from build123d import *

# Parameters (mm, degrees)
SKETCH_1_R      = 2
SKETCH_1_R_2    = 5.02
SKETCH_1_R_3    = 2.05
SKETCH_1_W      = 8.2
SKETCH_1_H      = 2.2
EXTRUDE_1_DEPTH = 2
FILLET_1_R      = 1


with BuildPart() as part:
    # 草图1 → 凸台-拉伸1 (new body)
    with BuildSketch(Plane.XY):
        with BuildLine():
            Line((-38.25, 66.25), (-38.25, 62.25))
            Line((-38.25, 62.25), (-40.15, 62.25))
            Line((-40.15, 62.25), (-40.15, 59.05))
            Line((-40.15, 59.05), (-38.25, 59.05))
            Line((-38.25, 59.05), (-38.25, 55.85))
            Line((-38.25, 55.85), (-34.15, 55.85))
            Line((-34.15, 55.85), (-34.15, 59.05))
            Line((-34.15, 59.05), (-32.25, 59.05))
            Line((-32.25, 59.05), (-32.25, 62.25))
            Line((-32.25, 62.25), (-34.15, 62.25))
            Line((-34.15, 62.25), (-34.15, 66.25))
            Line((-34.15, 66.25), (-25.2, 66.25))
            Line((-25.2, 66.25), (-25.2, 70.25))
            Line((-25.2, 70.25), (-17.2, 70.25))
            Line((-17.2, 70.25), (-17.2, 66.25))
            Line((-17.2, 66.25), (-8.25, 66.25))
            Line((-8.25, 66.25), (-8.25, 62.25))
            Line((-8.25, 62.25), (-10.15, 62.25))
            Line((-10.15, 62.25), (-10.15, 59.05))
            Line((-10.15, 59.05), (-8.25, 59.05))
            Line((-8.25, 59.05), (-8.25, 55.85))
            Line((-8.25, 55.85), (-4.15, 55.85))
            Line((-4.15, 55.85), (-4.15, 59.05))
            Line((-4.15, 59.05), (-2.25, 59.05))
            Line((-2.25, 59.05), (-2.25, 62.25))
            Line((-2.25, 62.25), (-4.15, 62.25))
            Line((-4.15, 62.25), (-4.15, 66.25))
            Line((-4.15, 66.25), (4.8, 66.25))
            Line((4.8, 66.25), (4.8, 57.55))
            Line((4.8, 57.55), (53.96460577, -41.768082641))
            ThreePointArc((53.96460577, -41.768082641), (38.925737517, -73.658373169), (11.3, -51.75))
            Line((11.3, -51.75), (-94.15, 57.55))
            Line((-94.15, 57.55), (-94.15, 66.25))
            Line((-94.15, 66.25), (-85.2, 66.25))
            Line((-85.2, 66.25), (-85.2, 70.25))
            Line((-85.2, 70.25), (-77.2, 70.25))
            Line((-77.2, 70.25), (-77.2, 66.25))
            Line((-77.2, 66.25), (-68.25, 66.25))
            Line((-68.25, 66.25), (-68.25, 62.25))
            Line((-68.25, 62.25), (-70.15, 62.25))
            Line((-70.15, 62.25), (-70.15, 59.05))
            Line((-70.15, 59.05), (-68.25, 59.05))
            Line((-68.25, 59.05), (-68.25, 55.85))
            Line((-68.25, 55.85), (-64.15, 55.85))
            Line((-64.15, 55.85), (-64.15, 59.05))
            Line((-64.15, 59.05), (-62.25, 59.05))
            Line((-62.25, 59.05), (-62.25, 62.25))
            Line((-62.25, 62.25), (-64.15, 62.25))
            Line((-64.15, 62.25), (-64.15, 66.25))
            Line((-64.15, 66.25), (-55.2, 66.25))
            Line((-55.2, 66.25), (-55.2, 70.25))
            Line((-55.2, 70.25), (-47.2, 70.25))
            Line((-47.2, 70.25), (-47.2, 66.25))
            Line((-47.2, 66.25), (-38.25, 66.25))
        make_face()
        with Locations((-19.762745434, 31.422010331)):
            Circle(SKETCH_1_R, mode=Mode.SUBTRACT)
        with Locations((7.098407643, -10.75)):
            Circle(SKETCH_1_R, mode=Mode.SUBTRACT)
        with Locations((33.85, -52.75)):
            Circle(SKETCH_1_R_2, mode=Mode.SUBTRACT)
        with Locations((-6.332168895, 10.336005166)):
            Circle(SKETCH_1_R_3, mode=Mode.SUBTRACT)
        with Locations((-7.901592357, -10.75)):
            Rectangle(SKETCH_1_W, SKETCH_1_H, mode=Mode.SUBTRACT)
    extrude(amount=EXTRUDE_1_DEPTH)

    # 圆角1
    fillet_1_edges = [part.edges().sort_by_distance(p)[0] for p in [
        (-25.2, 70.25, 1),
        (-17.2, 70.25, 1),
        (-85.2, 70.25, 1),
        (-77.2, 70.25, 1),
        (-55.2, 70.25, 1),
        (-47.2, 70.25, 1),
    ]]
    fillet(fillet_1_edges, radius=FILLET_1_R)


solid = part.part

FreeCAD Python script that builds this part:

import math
import FreeCAD as App
import Part
import Sketcher

V = App.Vector


def edges_at(feature, points):
    """Names of the edges that pass closest to the given points."""
    edges = feature.Shape.Edges
    near = lambda p: min(range(len(edges)), key=lambda i: edges[i].distToShape(Part.Vertex(*p))[0])
    return sorted({f"Edge{near(p) + 1}" for p in points})

doc = App.newDocument("Part")
body = doc.addObject("PartDesign::Body", "Body")

sketch1 = body.newObject("Sketcher::SketchObject", "Sketch")
sketch1.AttachmentSupport = (doc.getObject("XY_Plane"), [""])
sketch1.MapMode = "FlatFace"
sketch1.addGeometry([
    Part.LineSegment(V(-38.25, 62.25, 0), V(-38.25, 66.25, 0)),
    Part.LineSegment(V(-38.25, 66.25, 0), V(-47.2, 66.25, 0)),
    Part.LineSegment(V(-47.2, 66.25, 0), V(-47.2, 70.25, 0)),
    Part.LineSegment(V(-47.2, 70.25, 0), V(-55.2, 70.25, 0)),
    Part.LineSegment(V(-55.2, 70.25, 0), V(-55.2, 66.25, 0)),
    Part.LineSegment(V(-55.2, 66.25, 0), V(-64.15, 66.25, 0)),
    Part.LineSegment(V(-64.15, 66.25, 0), V(-64.15, 62.25, 0)),
    Part.LineSegment(V(-64.15, 62.25, 0), V(-62.25, 62.25, 0)),
    Part.LineSegment(V(-62.25, 62.25, 0), V(-62.25, 59.05, 0)),
    Part.LineSegment(V(-62.25, 59.05, 0), V(-64.15, 59.05, 0)),
    Part.LineSegment(V(-64.15, 59.05, 0), V(-64.15, 55.85, 0)),
    Part.LineSegment(V(-64.15, 55.85, 0), V(-68.25, 55.85, 0)),
    Part.LineSegment(V(-68.25, 55.85, 0), V(-68.25, 59.05, 0)),
    Part.LineSegment(V(-68.25, 59.05, 0), V(-70.15, 59.05, 0)),
    Part.LineSegment(V(-70.15, 59.05, 0), V(-70.15, 62.25, 0)),
    Part.LineSegment(V(-70.15, 62.25, 0), V(-68.25, 62.25, 0)),
    Part.LineSegment(V(-68.25, 62.25, 0), V(-68.25, 66.25, 0)),
    Part.LineSegment(V(-68.25, 66.25, 0), V(-77.2, 66.25, 0)),
    Part.LineSegment(V(-77.2, 66.25, 0), V(-77.2, 70.25, 0)),
    Part.LineSegment(V(-77.2, 70.25, 0), V(-85.2, 70.25, 0)),
    Part.LineSegment(V(-85.2, 70.25, 0), V(-85.2, 66.25, 0)),
    Part.LineSegment(V(-85.2, 66.25, 0), V(-94.15, 66.25, 0)),
    Part.LineSegment(V(-94.15, 66.25, 0), V(-94.15, 57.55, 0)),
    Part.LineSegment(V(-94.15, 57.55, 0), V(11.3, -51.75, 0)),
    Part.ArcOfCircle(Part.Circle(V(33.8, -51.75, 0), V(0, 0, 1), 22.5), math.radians(180), math.radians(386.336408)),
    Part.LineSegment(V(53.964606, -41.768083, 0), V(4.8, 57.55, 0)),
    Part.LineSegment(V(4.8, 57.55, 0), V(4.8, 66.25, 0)),
    Part.LineSegment(V(4.8, 66.25, 0), V(-4.15, 66.25, 0)),
    Part.LineSegment(V(-4.15, 66.25, 0), V(-4.15, 62.25, 0)),
    Part.LineSegment(V(-4.15, 62.25, 0), V(-2.25, 62.25, 0)),
    Part.LineSegment(V(-2.25, 62.25, 0), V(-2.25, 59.05, 0)),
    Part.LineSegment(V(-2.25, 59.05, 0), V(-4.15, 59.05, 0)),
    Part.LineSegment(V(-4.15, 59.05, 0), V(-4.15, 55.85, 0)),
    Part.LineSegment(V(-4.15, 55.85, 0), V(-8.25, 55.85, 0)),
    Part.LineSegment(V(-8.25, 55.85, 0), V(-8.25, 59.05, 0)),
    Part.LineSegment(V(-8.25, 59.05, 0), V(-10.15, 59.05, 0)),
    Part.LineSegment(V(-10.15, 59.05, 0), V(-10.15, 62.25, 0)),
    Part.LineSegment(V(-10.15, 62.25, 0), V(-8.25, 62.25, 0)),
    Part.LineSegment(V(-8.25, 62.25, 0), V(-8.25, 66.25, 0)),
    Part.LineSegment(V(-8.25, 66.25, 0), V(-17.2, 66.25, 0)),
    Part.LineSegment(V(-17.2, 66.25, 0), V(-17.2, 70.25, 0)),
    Part.LineSegment(V(-17.2, 70.25, 0), V(-25.2, 70.25, 0)),
    Part.LineSegment(V(-25.2, 70.25, 0), V(-25.2, 66.25, 0)),
    Part.LineSegment(V(-25.2, 66.25, 0), V(-34.15, 66.25, 0)),
    Part.LineSegment(V(-34.15, 66.25, 0), V(-34.15, 62.25, 0)),
    Part.LineSegment(V(-34.15, 62.25, 0), V(-32.25, 62.25, 0)),
    Part.LineSegment(V(-32.25, 62.25, 0), V(-32.25, 59.05, 0)),
    Part.LineSegment(V(-32.25, 59.05, 0), V(-34.15, 59.05, 0)),
    Part.LineSegment(V(-34.15, 59.05, 0), V(-34.15, 55.85, 0)),
    Part.LineSegment(V(-34.15, 55.85, 0), V(-38.25, 55.85, 0)),
    Part.LineSegment(V(-38.25, 55.85, 0), V(-38.25, 59.05, 0)),
    Part.LineSegment(V(-38.25, 59.05, 0), V(-40.15, 59.05, 0)),
    Part.LineSegment(V(-40.15, 59.05, 0), V(-40.15, 62.25, 0)),
    Part.LineSegment(V(-40.15, 62.25, 0), V(-38.25, 62.25, 0)),
    Part.Circle(V(33.85, -52.75, 0), V(0, 0, 1), 5.02),
    Part.Circle(V(7.098408, -10.75, 0), V(0, 0, 1), 2),
    Part.Circle(V(-6.332169, 10.336005, 0), V(0, 0, 1), 2.05),
    Part.LineSegment(V(-12.001592, -11.85, 0), V(-12.001592, -9.65, 0)),
    Part.LineSegment(V(-12.001592, -9.65, 0), V(-3.801592, -9.65, 0)),
    Part.LineSegment(V(-3.801592, -9.65, 0), V(-3.801592, -11.85, 0)),
    Part.LineSegment(V(-3.801592, -11.85, 0), V(-12.001592, -11.85, 0)),
    Part.Circle(V(-19.762745, 31.42201, 0), V(0, 0, 1), 2),
], False)
sketch1.addConstraint([
    Sketcher.Constraint("Coincident", 0, 2, 1, 1),
    Sketcher.Constraint("Coincident", 1, 2, 2, 1),
    Sketcher.Constraint("Coincident", 2, 2, 3, 1),
    Sketcher.Constraint("Coincident", 3, 2, 4, 1),
    Sketcher.Constraint("Coincident", 4, 2, 5, 1),
    Sketcher.Constraint("Coincident", 5, 2, 6, 1),
    Sketcher.Constraint("Coincident", 6, 2, 7, 1),
    Sketcher.Constraint("Coincident", 7, 2, 8, 1),
    Sketcher.Constraint("Coincident", 8, 2, 9, 1),
    Sketcher.Constraint("Coincident", 9, 2, 10, 1),
    Sketcher.Constraint("Coincident", 10, 2, 11, 1),
    Sketcher.Constraint("Coincident", 11, 2, 12, 1),
    Sketcher.Constraint("Coincident", 12, 2, 13, 1),
    Sketcher.Constraint("Coincident", 13, 2, 14, 1),
    Sketcher.Constraint("Coincident", 14, 2, 15, 1),
    Sketcher.Constraint("Coincident", 15, 2, 16, 1),
    Sketcher.Constraint("Coincident", 16, 2, 17, 1),
    Sketcher.Constraint("Coincident", 17, 2, 18, 1),
    Sketcher.Constraint("Coincident", 18, 2, 19, 1),
    Sketcher.Constraint("Coincident", 19, 2, 20, 1),
    Sketcher.Constraint("Coincident", 20, 2, 21, 1),
    Sketcher.Constraint("Coincident", 21, 2, 22, 1),
    Sketcher.Constraint("Coincident", 22, 2, 23, 1),
    Sketcher.Constraint("Coincident", 23, 2, 24, 1),
    Sketcher.Constraint("Tangent", 24, 2, 25, 1),
    Sketcher.Constraint("Coincident", 25, 2, 26, 1),
    Sketcher.Constraint("Coincident", 26, 2, 27, 1),
    Sketcher.Constraint("Coincident", 27, 2, 28, 1),
    Sketcher.Constraint("Coincident", 28, 2, 29, 1),
    Sketcher.Constraint("Coincident", 29, 2, 30, 1),
    Sketcher.Constraint("Coincident", 30, 2, 31, 1),
    Sketcher.Constraint("Coincident", 31, 2, 32, 1),
    Sketcher.Constraint("Coincident", 32, 2, 33, 1),
    Sketcher.Constraint("Coincident", 33, 2, 34, 1),
    Sketcher.Constraint("Coincident", 34, 2, 35, 1),
    Sketcher.Constraint("Coincident", 35, 2, 36, 1),
    Sketcher.Constraint("Coincident", 36, 2, 37, 1),
    Sketcher.Constraint("Coincident", 37, 2, 38, 1),
    Sketcher.Constraint("Coincident", 38, 2, 39, 1),
    Sketcher.Constraint("Coincident", 39, 2, 40, 1),
    Sketcher.Constraint("Coincident", 40, 2, 41, 1),
    Sketcher.Constraint("Coincident", 41, 2, 42, 1),
    Sketcher.Constraint("Coincident", 42, 2, 43, 1),
    Sketcher.Constraint("Coincident", 43, 2, 44, 1),
    Sketcher.Constraint("Coincident", 44, 2, 45, 1),
    Sketcher.Constraint("Coincident", 45, 2, 46, 1),
    Sketcher.Constraint("Coincident", 46, 2, 47, 1),
    Sketcher.Constraint("Coincident", 47, 2, 48, 1),
    Sketcher.Constraint("Coincident", 48, 2, 49, 1),
    Sketcher.Constraint("Coincident", 49, 2, 50, 1),
    Sketcher.Constraint("Coincident", 50, 2, 51, 1),
    Sketcher.Constraint("Coincident", 51, 2, 52, 1),
    Sketcher.Constraint("Coincident", 52, 2, 53, 1),
    Sketcher.Constraint("Coincident", 53, 2, 0, 1),
    Sketcher.Constraint("Coincident", 57, 2, 58, 1),
    Sketcher.Constraint("Coincident", 58, 2, 59, 1),
    Sketcher.Constraint("Coincident", 59, 2, 60, 1),
    Sketcher.Constraint("Coincident", 60, 2, 57, 1),
    Sketcher.Constraint("Vertical", 0),
    Sketcher.Constraint("Horizontal", 1),
    Sketcher.Constraint("Vertical", 2),
    Sketcher.Constraint("Horizontal", 3),
    Sketcher.Constraint("Vertical", 4),
    Sketcher.Constraint("Horizontal", 5),
    Sketcher.Constraint("Vertical", 6),
    Sketcher.Constraint("Horizontal", 7),
    Sketcher.Constraint("Vertical", 8),
    Sketcher.Constraint("Horizontal", 9),
    Sketcher.Constraint("Vertical", 10),
    Sketcher.Constraint("Horizontal", 11),
    Sketcher.Constraint("Vertical", 12),
    Sketcher.Constraint("Horizontal", 13),
    Sketcher.Constraint("Vertical", 14),
    Sketcher.Constraint("Horizontal", 15),
    Sketcher.Constraint("Vertical", 16),
    Sketcher.Constraint("Horizontal", 17),
    Sketcher.Constraint("Vertical", 18),
    Sketcher.Constraint("Horizontal", 19),
    Sketcher.Constraint("Vertical", 20),
    Sketcher.Constraint("Horizontal", 21),
    Sketcher.Constraint("Vertical", 22),
    Sketcher.Constraint("Vertical", 26),
    Sketcher.Constraint("Horizontal", 27),
    Sketcher.Constraint("Vertical", 28),
    Sketcher.Constraint("Horizontal", 29),
    Sketcher.Constraint("Vertical", 30),
    Sketcher.Constraint("Horizontal", 31),
    Sketcher.Constraint("Vertical", 32),
    Sketcher.Constraint("Horizontal", 33),
    Sketcher.Constraint("Vertical", 34),
    Sketcher.Constraint("Horizontal", 35),
    Sketcher.Constraint("Vertical", 36),
    Sketcher.Constraint("Horizontal", 37),
    Sketcher.Constraint("Vertical", 38),
    Sketcher.Constraint("Horizontal", 39),
    Sketcher.Constraint("Vertical", 40),
    Sketcher.Constraint("Horizontal", 41),
    Sketcher.Constraint("Vertical", 42),
    Sketcher.Constraint("Horizontal", 43),
    Sketcher.Constraint("Vertical", 44),
    Sketcher.Constraint("Horizontal", 45),
    Sketcher.Constraint("Vertical", 46),
    Sketcher.Constraint("Horizontal", 47),
    Sketcher.Constraint("Vertical", 48),
    Sketcher.Constraint("Horizontal", 49),
    Sketcher.Constraint("Vertical", 50),
    Sketcher.Constraint("Horizontal", 51),
    Sketcher.Constraint("Vertical", 52),
    Sketcher.Constraint("Horizontal", 53),
    Sketcher.Constraint("Vertical", 57),
    Sketcher.Constraint("Horizontal", 58),
    Sketcher.Constraint("Vertical", 59),
    Sketcher.Constraint("Horizontal", 60),
    Sketcher.Constraint("Equal", 55, 61),
    Sketcher.Constraint("Horizontal", 1, 2, 4, 2),
    Sketcher.Constraint("Horizontal", 9, 2, 12, 2),
    Sketcher.Constraint("Horizontal", 7, 2, 14, 2),
    Sketcher.Constraint("Horizontal", 5, 2, 16, 2),
    Sketcher.Constraint("Horizontal", 3, 2, 18, 2),
    Sketcher.Constraint("Horizontal", 17, 2, 20, 2),
    Sketcher.Constraint("Horizontal", 24, 3, 23, 2),
    Sketcher.Constraint("Horizontal", 22, 2, 25, 2),
    Sketcher.Constraint("Horizontal", 21, 2, 26, 2),
    Sketcher.Constraint("Horizontal", 15, 2, 28, 2),
    Sketcher.Constraint("Horizontal", 13, 2, 30, 2),
    Sketcher.Constraint("Horizontal", 11, 2, 32, 2),
    Sketcher.Constraint("Horizontal", 31, 2, 34, 2),
    Sketcher.Constraint("Horizontal", 29, 2, 36, 2),
    Sketcher.Constraint("Horizontal", 27, 2, 38, 2),
    Sketcher.Constraint("Horizontal", 19, 2, 40, 2),
    Sketcher.Constraint("Horizontal", 39, 2, 42, 2),
    Sketcher.Constraint("Horizontal", 37, 2, 44, 2),
    Sketcher.Constraint("Horizontal", 35, 2, 46, 2),
    Sketcher.Constraint("Horizontal", 33, 2, 48, 2),
    Sketcher.Constraint("Horizontal", 47, 2, 50, 2),
    Sketcher.Constraint("Horizontal", 45, 2, 52, 2),
    Sketcher.Constraint("Vertical", 6, 2, 9, 2),
    Sketcher.Constraint("Vertical", 12, 2, 15, 2),
    Sketcher.Constraint("Vertical", 28, 2, 31, 2),
    Sketcher.Constraint("Vertical", 34, 2, 37, 2),
    Sketcher.Constraint("Vertical", 44, 2, 47, 2),
    Sketcher.Constraint("Vertical", 0, 2, 49, 2),
    Sketcher.Constraint("Equal", 1, 5),
    Sketcher.Constraint("Equal", 9, 13),
    Sketcher.Constraint("Equal", 5, 17),
    Sketcher.Constraint("Equal", 3, 19),
    Sketcher.Constraint("Equal", 17, 21),
    Sketcher.Constraint("Equal", 21, 27),
    Sketcher.Constraint("Equal", 15, 29),
    Sketcher.Constraint("Equal", 11, 33),
    Sketcher.Constraint("Equal", 31, 35),
    Sketcher.Constraint("Equal", 27, 39),
    Sketcher.Constraint("Equal", 19, 41),
    Sketcher.Constraint("Equal", 39, 43),
    Sketcher.Constraint("Equal", 37, 45),
    Sketcher.Constraint("Equal", 33, 49),
    Sketcher.Constraint("Equal", 47, 51),
    Sketcher.Constraint("Equal", 0, 2),
    Sketcher.Constraint("Equal", 8, 10),
    Sketcher.Constraint("Diameter", 55, 4.0),
    Sketcher.Constraint("Diameter", 56, 4.1),
    Sketcher.Constraint("Radius", 24, 22.5),
    Sketcher.Constraint("Diameter", 54, 10.04),
    Sketcher.Constraint("DistanceX", 3, 2, 3, 1, 8.0),
    Sketcher.Constraint("DistanceY", 0, 1, 0, 2, 4.0),
    Sketcher.Constraint("DistanceX", 7, 1, 7, 2, 1.9),
    Sketcher.Constraint("DistanceX", 11, 2, 11, 1, 4.1),
    Sketcher.Constraint("DistanceX", 58, 1, 58, 2, 8.2),
    Sketcher.Constraint("DistanceY", 8, 2, 8, 1, 3.2),
    Sketcher.Constraint("DistanceY", 22, 2, 22, 1, 8.7),
    Sketcher.Constraint("DistanceY", 57, 1, 57, 2, 2.2),
    Sketcher.Constraint("DistanceX", 1, 2, 1, 1, 8.95),
    Sketcher.Constraint("DistanceX", -1, 1, 24, 3, 33.8),
    Sketcher.Constraint("DistanceX", 1, 2, -1, 1, 47.2),
    Sketcher.Constraint("DistanceY", 24, 3, -1, 1, 51.75),
    Sketcher.Constraint("DistanceX", -1, 1, 54, 3, 33.85),
    Sketcher.Constraint("DistanceY", 54, 3, -1, 1, 52.75),
    Sketcher.Constraint("DistanceY", 55, 3, -1, 1, 10.75),
    Sketcher.Constraint("DistanceY", -1, 1, 0, 2, 66.25),
    Sketcher.Constraint("DistanceY", 57, 2, -1, 1, 9.65),
    Sketcher.Constraint("DistanceX", 56, 3, -1, 1, 6.332169),
    Sketcher.Constraint("DistanceY", -1, 1, 61, 3, 31.42201),
    Sketcher.Constraint("DistanceX", -1, 1, 55, 3, 7.098408),
    Sketcher.Constraint("DistanceY", -1, 1, 56, 3, 10.336005),
    Sketcher.Constraint("DistanceX", 61, 3, -1, 1, 19.762745),
    Sketcher.Constraint("DistanceX", 57, 2, -1, 1, 12.001592),
])
pad1 = body.newObject("PartDesign::Pad", "Pad")
pad1.Profile = sketch1
pad1.Length = 2
doc.recompute()

fillet = body.newObject("PartDesign::Fillet", "Fillet")
fillet.Base = (pad1, edges_at(pad1, [
    (-25.2, 70.25, 1),
    (-17.2, 70.25, 1),
    (-85.2, 70.25, 1),
    (-77.2, 70.25, 1),
    (-55.2, 70.25, 1),
    (-47.2, 70.25, 1),
]))
fillet.Radius = 1

doc.recompute()
